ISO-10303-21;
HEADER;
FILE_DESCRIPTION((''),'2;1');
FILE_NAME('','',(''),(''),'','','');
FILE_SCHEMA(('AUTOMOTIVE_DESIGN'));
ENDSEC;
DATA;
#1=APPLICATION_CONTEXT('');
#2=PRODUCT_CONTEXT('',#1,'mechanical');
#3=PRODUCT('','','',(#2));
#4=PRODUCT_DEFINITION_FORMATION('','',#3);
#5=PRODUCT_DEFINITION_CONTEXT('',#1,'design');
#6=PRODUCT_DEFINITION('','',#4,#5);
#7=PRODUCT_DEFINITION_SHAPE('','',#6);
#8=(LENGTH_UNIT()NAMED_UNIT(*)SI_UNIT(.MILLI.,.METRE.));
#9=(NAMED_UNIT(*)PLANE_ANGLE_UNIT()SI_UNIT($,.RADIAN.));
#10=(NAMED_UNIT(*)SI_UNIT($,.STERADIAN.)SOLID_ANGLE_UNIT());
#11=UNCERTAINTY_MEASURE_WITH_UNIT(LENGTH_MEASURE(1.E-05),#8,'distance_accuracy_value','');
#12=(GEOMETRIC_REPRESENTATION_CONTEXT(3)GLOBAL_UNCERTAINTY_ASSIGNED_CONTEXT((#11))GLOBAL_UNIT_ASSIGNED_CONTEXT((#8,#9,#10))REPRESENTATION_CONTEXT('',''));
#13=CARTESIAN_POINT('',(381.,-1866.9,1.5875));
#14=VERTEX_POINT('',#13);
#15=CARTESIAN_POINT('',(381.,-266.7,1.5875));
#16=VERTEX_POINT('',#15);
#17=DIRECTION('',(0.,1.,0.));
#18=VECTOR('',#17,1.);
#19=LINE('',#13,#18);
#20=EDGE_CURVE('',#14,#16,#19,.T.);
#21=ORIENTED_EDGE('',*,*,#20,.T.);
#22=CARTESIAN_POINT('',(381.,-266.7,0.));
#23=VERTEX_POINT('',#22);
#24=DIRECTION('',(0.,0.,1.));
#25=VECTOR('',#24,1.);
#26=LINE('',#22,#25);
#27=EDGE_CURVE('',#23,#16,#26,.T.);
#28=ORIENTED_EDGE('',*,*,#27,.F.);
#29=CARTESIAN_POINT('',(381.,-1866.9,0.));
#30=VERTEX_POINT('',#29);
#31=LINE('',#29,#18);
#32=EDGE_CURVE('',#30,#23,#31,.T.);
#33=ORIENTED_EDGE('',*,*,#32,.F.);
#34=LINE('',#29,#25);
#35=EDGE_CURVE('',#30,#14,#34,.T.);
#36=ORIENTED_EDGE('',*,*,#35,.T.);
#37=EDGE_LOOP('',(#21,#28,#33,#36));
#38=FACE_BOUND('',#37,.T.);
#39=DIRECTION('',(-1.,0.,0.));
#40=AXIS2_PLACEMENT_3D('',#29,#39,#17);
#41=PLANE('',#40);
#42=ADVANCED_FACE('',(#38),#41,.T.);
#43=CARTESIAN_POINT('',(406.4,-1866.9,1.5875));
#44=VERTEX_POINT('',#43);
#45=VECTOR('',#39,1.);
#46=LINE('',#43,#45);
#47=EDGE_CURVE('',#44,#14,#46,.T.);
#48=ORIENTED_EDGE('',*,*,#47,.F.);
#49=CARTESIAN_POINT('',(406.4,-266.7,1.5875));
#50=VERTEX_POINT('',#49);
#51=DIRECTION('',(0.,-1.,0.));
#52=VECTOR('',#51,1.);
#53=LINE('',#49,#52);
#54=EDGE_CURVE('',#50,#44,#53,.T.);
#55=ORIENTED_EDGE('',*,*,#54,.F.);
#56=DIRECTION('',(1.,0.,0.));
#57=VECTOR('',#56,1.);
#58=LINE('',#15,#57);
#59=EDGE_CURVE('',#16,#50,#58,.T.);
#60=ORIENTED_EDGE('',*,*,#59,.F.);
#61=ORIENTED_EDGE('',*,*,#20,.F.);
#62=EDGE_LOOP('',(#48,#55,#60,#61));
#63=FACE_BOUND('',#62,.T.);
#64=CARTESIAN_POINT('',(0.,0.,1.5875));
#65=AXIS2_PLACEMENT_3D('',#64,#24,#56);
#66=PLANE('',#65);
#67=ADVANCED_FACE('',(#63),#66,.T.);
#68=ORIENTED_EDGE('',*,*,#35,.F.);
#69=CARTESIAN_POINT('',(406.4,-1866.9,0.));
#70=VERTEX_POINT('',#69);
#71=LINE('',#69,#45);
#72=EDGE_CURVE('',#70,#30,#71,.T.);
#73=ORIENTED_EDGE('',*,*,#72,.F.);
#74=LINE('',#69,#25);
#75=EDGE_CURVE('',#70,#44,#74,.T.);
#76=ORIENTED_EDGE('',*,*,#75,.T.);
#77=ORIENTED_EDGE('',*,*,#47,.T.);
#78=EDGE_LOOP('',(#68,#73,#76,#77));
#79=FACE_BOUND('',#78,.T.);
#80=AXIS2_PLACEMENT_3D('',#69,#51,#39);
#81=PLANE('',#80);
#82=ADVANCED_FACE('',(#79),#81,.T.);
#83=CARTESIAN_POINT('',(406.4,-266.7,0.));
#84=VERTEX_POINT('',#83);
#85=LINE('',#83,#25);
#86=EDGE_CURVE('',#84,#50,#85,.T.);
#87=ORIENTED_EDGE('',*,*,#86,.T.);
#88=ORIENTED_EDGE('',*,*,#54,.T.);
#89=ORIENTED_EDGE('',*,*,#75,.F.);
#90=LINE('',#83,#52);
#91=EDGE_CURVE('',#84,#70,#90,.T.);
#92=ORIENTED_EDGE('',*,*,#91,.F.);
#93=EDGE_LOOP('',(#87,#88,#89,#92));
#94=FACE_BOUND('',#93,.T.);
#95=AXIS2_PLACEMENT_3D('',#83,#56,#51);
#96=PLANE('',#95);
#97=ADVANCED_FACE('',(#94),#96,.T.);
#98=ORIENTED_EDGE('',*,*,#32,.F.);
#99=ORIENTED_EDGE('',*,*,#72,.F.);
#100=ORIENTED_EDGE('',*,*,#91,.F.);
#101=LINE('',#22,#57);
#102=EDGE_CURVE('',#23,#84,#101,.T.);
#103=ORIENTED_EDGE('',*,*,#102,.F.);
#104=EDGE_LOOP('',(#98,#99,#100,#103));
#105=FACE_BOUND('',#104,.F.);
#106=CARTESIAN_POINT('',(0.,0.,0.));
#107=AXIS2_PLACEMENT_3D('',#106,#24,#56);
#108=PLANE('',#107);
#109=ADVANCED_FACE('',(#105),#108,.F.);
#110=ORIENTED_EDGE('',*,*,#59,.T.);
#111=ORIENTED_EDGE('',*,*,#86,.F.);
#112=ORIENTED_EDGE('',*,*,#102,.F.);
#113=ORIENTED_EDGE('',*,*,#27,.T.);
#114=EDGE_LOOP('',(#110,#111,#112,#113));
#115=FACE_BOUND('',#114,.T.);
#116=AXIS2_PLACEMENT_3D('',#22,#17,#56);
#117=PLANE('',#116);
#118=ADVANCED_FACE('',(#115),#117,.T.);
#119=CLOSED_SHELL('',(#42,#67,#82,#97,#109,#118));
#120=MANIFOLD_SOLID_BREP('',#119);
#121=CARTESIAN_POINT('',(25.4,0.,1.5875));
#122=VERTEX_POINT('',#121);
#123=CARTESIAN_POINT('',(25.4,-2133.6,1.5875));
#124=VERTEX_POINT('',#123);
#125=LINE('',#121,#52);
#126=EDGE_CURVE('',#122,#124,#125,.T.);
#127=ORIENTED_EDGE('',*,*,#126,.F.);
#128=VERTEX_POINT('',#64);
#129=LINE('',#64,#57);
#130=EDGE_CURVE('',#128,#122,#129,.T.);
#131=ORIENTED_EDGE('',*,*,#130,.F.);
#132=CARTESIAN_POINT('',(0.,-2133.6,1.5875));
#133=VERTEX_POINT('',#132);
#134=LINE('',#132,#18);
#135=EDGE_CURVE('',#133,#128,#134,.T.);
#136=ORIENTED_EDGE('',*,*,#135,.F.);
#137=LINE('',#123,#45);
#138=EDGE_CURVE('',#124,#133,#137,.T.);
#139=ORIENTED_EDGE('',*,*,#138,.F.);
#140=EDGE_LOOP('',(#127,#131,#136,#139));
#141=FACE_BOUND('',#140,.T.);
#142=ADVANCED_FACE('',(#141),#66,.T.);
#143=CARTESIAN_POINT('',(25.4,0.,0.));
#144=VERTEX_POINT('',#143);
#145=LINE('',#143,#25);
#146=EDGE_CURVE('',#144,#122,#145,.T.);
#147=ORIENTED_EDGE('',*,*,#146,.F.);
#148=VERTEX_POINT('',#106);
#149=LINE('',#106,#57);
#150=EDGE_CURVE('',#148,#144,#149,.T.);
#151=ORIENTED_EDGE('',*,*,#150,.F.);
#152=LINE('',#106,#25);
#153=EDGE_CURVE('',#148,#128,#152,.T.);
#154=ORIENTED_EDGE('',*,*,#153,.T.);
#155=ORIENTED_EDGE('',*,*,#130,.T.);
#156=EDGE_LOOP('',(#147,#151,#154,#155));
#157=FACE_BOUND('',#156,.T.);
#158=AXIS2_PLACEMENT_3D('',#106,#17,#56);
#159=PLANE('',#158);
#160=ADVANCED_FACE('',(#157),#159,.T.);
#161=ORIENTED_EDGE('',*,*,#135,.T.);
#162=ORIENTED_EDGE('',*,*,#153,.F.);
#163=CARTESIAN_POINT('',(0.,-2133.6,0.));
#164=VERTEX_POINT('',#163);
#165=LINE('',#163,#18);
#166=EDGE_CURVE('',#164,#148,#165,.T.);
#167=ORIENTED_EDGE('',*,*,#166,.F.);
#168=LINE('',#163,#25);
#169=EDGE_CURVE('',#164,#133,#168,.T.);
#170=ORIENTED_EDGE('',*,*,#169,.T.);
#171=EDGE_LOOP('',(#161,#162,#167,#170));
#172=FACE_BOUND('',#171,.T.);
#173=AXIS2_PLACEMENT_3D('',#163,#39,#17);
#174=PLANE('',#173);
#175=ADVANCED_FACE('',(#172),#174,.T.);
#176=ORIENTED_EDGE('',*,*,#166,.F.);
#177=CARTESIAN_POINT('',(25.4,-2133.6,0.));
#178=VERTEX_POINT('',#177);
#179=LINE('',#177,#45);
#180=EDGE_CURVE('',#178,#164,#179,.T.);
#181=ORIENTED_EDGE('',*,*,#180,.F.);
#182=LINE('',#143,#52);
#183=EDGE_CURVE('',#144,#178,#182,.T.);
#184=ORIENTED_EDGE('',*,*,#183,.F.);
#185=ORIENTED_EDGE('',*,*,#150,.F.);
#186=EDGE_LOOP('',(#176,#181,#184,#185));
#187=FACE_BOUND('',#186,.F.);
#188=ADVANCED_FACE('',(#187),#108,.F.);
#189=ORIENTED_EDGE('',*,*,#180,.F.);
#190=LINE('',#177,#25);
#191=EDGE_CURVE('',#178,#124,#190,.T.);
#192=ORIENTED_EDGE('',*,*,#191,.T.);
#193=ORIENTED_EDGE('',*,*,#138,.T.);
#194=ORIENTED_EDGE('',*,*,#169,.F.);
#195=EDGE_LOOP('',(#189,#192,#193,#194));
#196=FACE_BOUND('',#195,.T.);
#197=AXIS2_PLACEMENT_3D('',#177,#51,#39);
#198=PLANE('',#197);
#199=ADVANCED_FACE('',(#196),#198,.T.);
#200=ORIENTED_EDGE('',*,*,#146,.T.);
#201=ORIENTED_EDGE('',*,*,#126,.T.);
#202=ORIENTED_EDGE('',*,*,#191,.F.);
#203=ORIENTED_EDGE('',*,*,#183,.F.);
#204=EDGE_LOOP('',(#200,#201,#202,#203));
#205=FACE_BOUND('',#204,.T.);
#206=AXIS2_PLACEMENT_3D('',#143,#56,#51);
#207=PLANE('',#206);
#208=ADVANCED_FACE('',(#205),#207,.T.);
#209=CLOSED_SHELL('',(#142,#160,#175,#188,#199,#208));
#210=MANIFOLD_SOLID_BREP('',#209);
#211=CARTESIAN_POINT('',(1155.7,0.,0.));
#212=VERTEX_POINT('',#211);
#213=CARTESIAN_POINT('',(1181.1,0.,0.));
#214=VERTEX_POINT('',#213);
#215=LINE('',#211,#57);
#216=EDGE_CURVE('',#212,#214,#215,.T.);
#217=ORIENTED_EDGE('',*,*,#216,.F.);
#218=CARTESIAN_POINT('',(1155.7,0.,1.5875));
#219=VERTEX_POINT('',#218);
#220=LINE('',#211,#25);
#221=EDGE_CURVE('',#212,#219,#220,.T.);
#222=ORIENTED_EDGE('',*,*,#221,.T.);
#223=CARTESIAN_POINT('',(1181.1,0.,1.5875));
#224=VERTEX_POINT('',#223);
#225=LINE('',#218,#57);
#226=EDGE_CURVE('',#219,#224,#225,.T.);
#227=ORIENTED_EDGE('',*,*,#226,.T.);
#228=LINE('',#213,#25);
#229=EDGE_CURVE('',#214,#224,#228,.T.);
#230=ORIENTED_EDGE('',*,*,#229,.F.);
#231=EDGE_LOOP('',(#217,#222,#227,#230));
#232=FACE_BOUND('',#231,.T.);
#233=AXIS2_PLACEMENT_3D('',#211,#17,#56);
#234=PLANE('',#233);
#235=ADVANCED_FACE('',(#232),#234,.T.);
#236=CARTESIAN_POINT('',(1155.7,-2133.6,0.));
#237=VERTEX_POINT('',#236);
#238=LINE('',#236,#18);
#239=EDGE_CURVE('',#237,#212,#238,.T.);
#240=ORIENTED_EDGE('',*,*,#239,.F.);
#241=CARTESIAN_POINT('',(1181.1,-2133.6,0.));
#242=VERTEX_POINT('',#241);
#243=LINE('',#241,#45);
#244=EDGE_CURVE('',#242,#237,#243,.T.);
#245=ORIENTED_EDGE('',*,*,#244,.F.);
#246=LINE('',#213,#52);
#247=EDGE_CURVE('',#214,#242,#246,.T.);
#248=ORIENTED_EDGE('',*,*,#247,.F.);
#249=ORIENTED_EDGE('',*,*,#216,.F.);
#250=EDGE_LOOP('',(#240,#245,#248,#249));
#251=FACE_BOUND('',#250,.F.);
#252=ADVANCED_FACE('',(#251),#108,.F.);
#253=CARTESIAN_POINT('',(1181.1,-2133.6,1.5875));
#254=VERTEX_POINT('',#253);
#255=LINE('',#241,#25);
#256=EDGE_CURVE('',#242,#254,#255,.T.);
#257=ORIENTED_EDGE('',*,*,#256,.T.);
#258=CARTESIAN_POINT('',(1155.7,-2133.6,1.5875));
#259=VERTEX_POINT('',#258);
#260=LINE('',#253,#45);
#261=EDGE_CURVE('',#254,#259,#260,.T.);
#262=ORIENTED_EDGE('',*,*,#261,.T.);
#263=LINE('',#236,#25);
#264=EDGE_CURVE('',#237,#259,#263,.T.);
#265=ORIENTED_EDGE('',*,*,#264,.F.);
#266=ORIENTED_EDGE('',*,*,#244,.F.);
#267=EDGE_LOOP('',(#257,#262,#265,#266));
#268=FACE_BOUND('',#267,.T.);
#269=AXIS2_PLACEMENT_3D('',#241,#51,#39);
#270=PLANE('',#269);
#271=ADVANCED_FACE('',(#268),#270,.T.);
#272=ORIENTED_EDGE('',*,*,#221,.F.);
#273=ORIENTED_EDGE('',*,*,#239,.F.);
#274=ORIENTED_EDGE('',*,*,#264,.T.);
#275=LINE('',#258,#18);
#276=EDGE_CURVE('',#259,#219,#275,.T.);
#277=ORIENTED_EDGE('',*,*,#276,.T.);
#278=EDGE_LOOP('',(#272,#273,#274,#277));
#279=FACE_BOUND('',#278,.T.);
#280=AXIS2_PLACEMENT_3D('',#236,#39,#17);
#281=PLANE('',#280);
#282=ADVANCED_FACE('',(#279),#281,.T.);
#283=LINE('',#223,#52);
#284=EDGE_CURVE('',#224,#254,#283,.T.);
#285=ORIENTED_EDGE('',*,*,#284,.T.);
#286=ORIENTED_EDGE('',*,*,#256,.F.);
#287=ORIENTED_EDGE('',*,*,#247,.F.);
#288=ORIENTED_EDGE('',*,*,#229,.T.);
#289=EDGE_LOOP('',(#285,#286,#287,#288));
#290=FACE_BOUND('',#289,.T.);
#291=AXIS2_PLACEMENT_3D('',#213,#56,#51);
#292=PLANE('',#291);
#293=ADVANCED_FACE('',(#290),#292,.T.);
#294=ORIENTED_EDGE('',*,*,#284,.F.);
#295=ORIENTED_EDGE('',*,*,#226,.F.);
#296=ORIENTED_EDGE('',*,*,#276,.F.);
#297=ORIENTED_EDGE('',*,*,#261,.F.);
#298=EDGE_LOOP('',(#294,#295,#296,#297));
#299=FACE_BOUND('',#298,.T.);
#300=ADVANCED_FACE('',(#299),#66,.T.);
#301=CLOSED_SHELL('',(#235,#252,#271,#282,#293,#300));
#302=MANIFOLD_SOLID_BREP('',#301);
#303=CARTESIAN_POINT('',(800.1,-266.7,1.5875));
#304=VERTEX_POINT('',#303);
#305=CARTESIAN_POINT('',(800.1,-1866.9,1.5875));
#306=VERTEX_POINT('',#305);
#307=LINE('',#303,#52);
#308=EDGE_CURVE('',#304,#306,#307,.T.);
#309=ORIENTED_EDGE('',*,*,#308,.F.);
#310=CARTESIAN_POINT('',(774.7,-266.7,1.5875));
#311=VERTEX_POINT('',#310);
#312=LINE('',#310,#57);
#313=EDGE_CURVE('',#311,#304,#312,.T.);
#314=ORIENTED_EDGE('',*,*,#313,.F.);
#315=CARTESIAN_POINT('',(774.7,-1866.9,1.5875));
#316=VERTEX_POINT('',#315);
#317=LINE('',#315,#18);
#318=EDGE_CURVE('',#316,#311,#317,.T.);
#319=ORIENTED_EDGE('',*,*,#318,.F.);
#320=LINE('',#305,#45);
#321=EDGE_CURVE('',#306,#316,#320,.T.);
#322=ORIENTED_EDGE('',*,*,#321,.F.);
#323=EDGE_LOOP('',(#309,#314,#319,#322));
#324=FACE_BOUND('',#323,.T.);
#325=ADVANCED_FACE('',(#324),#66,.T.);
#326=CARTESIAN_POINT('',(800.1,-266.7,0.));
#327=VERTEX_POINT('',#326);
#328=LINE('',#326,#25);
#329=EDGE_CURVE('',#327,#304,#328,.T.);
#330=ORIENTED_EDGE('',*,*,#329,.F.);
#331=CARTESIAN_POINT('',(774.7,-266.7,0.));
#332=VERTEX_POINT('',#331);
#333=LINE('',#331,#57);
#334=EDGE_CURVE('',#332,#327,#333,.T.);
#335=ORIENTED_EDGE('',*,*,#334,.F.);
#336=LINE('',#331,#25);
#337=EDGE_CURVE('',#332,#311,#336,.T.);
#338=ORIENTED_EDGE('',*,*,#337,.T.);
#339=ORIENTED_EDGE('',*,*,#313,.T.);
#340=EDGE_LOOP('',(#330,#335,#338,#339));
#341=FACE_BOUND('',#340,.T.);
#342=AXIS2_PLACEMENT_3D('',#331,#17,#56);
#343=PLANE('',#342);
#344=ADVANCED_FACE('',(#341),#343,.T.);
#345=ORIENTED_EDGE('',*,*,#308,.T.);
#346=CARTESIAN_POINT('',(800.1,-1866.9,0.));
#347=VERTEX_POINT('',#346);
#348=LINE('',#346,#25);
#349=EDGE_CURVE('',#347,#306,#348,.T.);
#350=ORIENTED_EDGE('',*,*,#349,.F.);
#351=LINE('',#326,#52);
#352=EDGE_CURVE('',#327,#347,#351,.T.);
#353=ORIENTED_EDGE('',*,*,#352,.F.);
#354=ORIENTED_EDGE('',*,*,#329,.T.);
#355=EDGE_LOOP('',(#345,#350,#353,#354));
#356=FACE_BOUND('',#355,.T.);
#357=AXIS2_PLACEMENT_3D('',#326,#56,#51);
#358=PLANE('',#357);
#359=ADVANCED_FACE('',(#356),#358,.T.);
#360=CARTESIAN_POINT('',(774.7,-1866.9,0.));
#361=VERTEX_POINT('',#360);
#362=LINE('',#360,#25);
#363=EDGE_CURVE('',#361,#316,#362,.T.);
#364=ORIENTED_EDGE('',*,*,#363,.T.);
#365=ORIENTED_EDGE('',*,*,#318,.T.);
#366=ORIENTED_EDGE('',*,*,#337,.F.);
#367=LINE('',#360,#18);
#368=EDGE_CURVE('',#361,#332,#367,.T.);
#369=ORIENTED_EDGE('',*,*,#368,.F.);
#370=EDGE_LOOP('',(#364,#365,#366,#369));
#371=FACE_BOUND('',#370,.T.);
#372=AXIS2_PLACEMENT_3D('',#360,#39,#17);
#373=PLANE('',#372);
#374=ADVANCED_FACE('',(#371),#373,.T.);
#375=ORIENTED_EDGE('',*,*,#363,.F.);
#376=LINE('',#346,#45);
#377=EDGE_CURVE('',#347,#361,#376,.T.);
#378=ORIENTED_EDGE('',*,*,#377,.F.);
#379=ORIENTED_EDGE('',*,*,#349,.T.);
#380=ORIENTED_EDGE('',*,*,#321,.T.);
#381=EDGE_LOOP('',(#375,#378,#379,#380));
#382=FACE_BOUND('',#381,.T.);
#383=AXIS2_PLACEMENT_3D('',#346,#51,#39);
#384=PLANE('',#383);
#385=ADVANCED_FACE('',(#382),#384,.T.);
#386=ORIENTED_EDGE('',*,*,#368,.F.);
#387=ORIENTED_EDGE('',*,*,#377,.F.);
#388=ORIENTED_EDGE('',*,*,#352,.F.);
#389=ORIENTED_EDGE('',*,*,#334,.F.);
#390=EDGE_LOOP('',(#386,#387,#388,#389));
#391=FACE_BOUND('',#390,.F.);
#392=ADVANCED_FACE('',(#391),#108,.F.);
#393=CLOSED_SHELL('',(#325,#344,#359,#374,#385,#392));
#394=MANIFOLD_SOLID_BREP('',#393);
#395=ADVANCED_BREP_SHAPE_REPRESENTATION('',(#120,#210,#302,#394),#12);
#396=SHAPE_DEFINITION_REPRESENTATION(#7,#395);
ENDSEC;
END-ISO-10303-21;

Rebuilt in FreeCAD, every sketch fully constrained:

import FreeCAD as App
import Part
import Sketcher

V = App.Vector
Q = App.Units.Quantity


def add_polygon(sketch, points):
    """Adds a closed chain of lines whose ends are joined by coincident constraints."""
    first, n = sketch.GeometryCount, len(points)
    for a, b in zip(points, points[1:] + points[:1]):
        sketch.addGeometry(Part.LineSegment(App.Vector(*a, 0), App.Vector(*b, 0)), False)
    for i in range(n):
        sketch.addConstraint(Sketcher.Constraint("Coincident", first + i, 2, first + (i + 1) % n, 1))

doc = App.newDocument("Part")
body = doc.addObject("PartDesign::Body", "Body")
body.AllowCompound = True

sketch1 = body.newObject("Sketcher::SketchObject", "Sketch")
sketch1.AttachmentSupport = (doc.getObject("XY_Plane"), [""])
sketch1.MapMode = "FlatFace"
add_polygon(sketch1, [(25, 0), (0, 0), (0, -2134), (25, -2134)])
add_polygon(sketch1, [(406, -267), (381, -267), (381, -1867), (406, -1867)])
add_polygon(sketch1, [(800, -267), (775, -267), (775, -1867), (800, -1867)])
add_polygon(sketch1, [(1181, 0), (1156, 0), (1156, -2134), (1181, -2134)])
sketch1.addConstraint([
    Sketcher.Constraint("Horizontal", 0),
    Sketcher.Constraint("Vertical", 1),
    Sketcher.Constraint("Horizontal", 2),
    Sketcher.Constraint("Vertical", 3),
    Sketcher.Constraint("Horizontal", 4),
    Sketcher.Constraint("Vertical", 5),
    Sketcher.Constraint("Horizontal", 6),
    Sketcher.Constraint("Vertical", 7),
    Sketcher.Constraint("Horizontal", 8),
    Sketcher.Constraint("Vertical", 9),
    Sketcher.Constraint("Horizontal", 10),
    Sketcher.Constraint("Vertical", 11),
    Sketcher.Constraint("Horizontal", 12),
    Sketcher.Constraint("Vertical", 13),
    Sketcher.Constraint("Horizontal", 14),
    Sketcher.Constraint("Vertical", 15),
    Sketcher.Constraint("Coincident", 0, 2, -1, 1),
    Sketcher.Constraint("PointOnObject", 12, 2, -1),
    Sketcher.Constraint("Horizontal", 7, 2, 8, 2),
    Sketcher.Constraint("Horizontal", 6, 2, 9, 2),
    Sketcher.Constraint("Horizontal", 2, 2, 13, 2),
    Sketcher.Constraint("Equal", 2, 4),
    Sketcher.Constraint("Equal", 6, 8),
    Sketcher.Constraint("Equal", 10, 12),
    Sketcher.Constraint("DistanceX", 0, 2, 0, 1, Q("1 in")),
    Sketcher.Constraint("DistanceY", 1, 2, 1, 1, Q("84 in")),
    Sketcher.Constraint("DistanceY", 5, 2, 5, 1, Q("63 in")),
    Sketcher.Constraint("DistanceX", 3, 2, 4, 2, Q("14 in")),
    Sketcher.Constraint("DistanceX", 11, 2, 12, 2, Q("14 in")),
    Sketcher.Constraint("DistanceY", 4, 2, -1, 1, Q("10.5 in")),
    Sketcher.Constraint("DistanceX", 4, 2, 8, 2, Q("15.5 in")),
])
pad1 = body.newObject("PartDesign::Pad", "Pad")
pad1.Profile = sketch1
pad1.Length = Q("0.0625 in")

doc.recompute()
